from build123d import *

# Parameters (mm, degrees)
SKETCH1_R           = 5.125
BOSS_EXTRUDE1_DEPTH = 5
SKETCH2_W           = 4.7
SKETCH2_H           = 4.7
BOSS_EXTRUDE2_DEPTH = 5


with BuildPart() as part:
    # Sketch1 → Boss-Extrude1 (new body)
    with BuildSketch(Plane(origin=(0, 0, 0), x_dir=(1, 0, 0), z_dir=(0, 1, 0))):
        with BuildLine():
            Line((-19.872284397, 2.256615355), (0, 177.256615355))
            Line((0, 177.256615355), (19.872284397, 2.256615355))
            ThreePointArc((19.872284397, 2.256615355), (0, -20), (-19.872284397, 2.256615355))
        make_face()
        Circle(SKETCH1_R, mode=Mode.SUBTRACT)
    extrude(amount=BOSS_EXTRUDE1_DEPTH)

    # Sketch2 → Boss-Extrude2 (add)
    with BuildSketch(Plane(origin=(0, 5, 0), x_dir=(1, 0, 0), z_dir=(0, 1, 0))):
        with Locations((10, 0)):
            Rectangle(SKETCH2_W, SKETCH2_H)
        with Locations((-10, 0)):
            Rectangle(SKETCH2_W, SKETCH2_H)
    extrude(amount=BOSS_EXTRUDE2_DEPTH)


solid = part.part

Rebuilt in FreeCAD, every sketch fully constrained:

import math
import FreeCAD as App
import Part
import Sketcher
from FreeCAD import Vector
Q = App.Units.Quantity


def add_polygon(sketch, points):
    """Adds a closed chain of lines whose ends are joined by coincident constraints."""
    first, n = sketch.GeometryCount, len(points)
    for a, b in zip(points, points[1:] + points[:1]):
        sketch.addGeometry(Part.LineSegment(App.Vector(*a, 0), App.Vector(*b, 0)), False)
    for i in range(n):
        sketch.addConstraint(Sketcher.Constraint("Coincident", first + i, 2, first + (i + 1) % n, 1))

doc = App.newDocument("Part")
body = doc.addObject("PartDesign::Body", "Body")

# Sketch on XZ plane
sketch1 = doc.addObject("Sketcher::SketchObject", "Sketch")
body.addObject(sketch1)
sketch1.AttachmentSupport = (doc.XZ_Plane, [""])
sketch1.MapMode = "FlatFace"
sketch1.addGeometry(Part.LineSegment(Vector(0, -177, 0), Vector(-20, -2, 0)), False)
sketch1.addGeometry(Part.ArcOfCircle(Part.Circle(Vector(0, 0, 0), Vector(0, 0, 1), 20), math.radians(-6), math.radians(186)), False)
sketch1.addGeometry(Part.LineSegment(Vector(20, -2, 0), Vector(0, -177, 0)), False)
sketch1.addGeometry(Part.Circle(Vector(0, 0, 0), Vector(0, 0, 1), 5), False)
sketch1.addConstraint(Sketcher.Constraint("Tangent", 0, 2, 1, 2))
sketch1.addConstraint(Sketcher.Constraint("Tangent", 1, 1, 2, 1))
sketch1.addConstraint(Sketcher.Constraint("Coincident", 2, 2, 0, 1))
sketch1.addConstraint(Sketcher.Constraint("Coincident", 1, 3, -1, 1))
sketch1.addConstraint(Sketcher.Constraint("Coincident", 3, 3, -1, 1))
sketch1.addConstraint(Sketcher.Constraint("PointOnObject", 2, 2, -2))
sketch1.addConstraint(Sketcher.Constraint("Radius", 1, Q("20 mm")))
sketch1.addConstraint(Sketcher.Constraint("Diameter", 3, Q("10.25 mm")))
sketch1.addConstraint(Sketcher.Constraint("DistanceY", 2, 2, 0, 2, Q("175 mm")))
pad1 = doc.addObject("PartDesign::Pad", "Pad")
body.addObject(pad1)
pad1.Profile = sketch1
pad1.Length = 5
pad1.Reversed = True

# Sketch on XZ plane
sketch2 = doc.addObject("Sketcher::SketchObject", "Sketch001")
body.addObject(sketch2)
sketch2.AttachmentSupport = (doc.XZ_Plane, [""])
sketch2.MapMode = "FlatFace"
sketch2.AttachmentOffset = App.Placement(Vector(0, 0, -5), App.Rotation())
add_polygon(sketch2, [(7.7, -2.4), (7.7, 2.4), (12.3, 2.4), (12.3, -2.4)])  # lines 0-3
add_polygon(sketch2, [(-12.3, -2.4), (-12.3, 2.4), (-7.7, 2.4), (-7.7, -2.4)])  # lines 4-7
sketch2.addConstraint(Sketcher.Constraint("Vertical", 0))
sketch2.addConstraint(Sketcher.Constraint("Horizontal", 1))
sketch2.addConstraint(Sketcher.Constraint("Vertical", 2))
sketch2.addConstraint(Sketcher.Constraint("Horizontal", 3))
sketch2.addConstraint(Sketcher.Constraint("Vertical", 4))
sketch2.addConstraint(Sketcher.Constraint("Horizontal", 5))
sketch2.addConstraint(Sketcher.Constraint("Vertical", 6))
sketch2.addConstraint(Sketcher.Constraint("Horizontal", 7))
sketch2.addConstraint(Sketcher.Constraint("Symmetric", 2, 2, 4, 2, -1, 1))
sketch2.addConstraint(Sketcher.Constraint("Symmetric", 0, 2, 6, 2, -1, 1))
sketch2.addConstraint(Sketcher.Constraint("Horizontal", 1, 2, 4, 2))
sketch2.addConstraint(Sketcher.Constraint("Equal", 7, 0))
sketch2.addConstraint(Sketcher.Constraint("DistanceX", 1, 1, 1, 2, Q("4.7 mm")))
sketch2.addConstraint(Sketcher.Constraint("DistanceX", 4, 2, 0, 2, Q("20 mm")))
pad2 = doc.addObject("PartDesign::Pad", "Pad001")
body.addObject(pad2)
pad2.Profile = sketch2
pad2.Length = 5
pad2.Reversed = True

doc.recompute()
